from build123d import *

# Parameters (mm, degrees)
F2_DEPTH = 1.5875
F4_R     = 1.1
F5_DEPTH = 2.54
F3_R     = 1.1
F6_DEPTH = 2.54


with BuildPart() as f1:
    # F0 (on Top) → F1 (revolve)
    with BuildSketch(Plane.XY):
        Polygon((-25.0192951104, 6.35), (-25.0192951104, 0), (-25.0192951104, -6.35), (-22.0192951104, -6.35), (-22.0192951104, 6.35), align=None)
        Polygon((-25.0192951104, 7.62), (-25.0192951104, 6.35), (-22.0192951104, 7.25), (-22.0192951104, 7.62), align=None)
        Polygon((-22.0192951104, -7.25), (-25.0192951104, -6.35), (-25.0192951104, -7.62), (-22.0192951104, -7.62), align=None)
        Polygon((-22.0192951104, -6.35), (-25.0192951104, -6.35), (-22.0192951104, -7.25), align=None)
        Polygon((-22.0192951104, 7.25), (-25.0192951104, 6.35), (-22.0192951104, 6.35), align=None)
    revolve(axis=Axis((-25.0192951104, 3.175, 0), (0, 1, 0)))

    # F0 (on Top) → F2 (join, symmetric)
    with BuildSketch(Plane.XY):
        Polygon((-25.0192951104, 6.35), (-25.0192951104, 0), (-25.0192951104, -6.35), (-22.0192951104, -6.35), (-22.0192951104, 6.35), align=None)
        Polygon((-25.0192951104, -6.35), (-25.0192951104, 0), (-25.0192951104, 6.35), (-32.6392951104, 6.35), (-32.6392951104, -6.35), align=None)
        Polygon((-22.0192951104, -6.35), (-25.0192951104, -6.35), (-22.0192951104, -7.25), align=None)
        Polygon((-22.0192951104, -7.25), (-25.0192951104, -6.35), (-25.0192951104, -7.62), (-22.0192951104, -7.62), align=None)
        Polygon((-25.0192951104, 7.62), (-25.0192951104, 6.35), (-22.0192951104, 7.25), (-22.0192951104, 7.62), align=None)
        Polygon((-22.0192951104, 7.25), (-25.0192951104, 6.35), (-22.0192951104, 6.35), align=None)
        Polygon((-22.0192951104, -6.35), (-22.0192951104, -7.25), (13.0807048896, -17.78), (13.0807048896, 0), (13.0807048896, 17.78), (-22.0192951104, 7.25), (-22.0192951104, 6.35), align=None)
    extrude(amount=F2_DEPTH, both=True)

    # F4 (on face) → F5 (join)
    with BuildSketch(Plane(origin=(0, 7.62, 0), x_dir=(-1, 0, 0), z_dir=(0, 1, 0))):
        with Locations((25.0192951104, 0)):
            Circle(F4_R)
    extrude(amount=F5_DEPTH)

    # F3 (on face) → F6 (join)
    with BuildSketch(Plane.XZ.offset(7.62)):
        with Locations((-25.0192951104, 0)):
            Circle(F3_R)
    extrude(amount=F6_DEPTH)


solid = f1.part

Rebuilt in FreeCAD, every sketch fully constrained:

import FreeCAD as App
import Part
import Sketcher
Q = App.Units.Quantity

doc = App.newDocument("Part")
body = doc.addObject("PartDesign::Body", "Body")

sketch1 = doc.addObject("Sketcher::SketchObject", "Sketch")
body.addObject(sketch1)
sketch1.AttachmentSupport = (doc.XY_Plane, [""])
sketch1.MapMode = "FlatFace"
sketch1.addGeometry(Part.LineSegment(App.Vector(-25.019295, -7.62, 0), App.Vector(-22.019295, -7.62, 0)), False)
sketch1.addGeometry(Part.LineSegment(App.Vector(-22.019295, -7.62, 0), App.Vector(-22.019295, 7.62, 0)), False)
sketch1.addGeometry(Part.LineSegment(App.Vector(-22.019295, 7.62, 0), App.Vector(-25.019295, 7.62, 0)), False)
sketch1.addGeometry(Part.LineSegment(App.Vector(-25.019295, 7.62, 0), App.Vector(-25.019295, -7.62, 0)), False)
sketch1.addGeometry(Part.LineSegment(App.Vector(-25.019295, -7.62, 0), App.Vector(-25.019295, 7.62, 0)), True)
sketch1.addConstraint(Sketcher.Constraint("Coincident", 0, 2, 1, 1))
sketch1.addConstraint(Sketcher.Constraint("Coincident", 1, 2, 2, 1))
sketch1.addConstraint(Sketcher.Constraint("Coincident", 2, 2, 3, 1))
sketch1.addConstraint(Sketcher.Constraint("Coincident", 3, 2, 0, 1))
sketch1.addConstraint(Sketcher.Constraint("Horizontal", 0))
sketch1.addConstraint(Sketcher.Constraint("Vertical", 1))
sketch1.addConstraint(Sketcher.Constraint("Horizontal", 2))
sketch1.addConstraint(Sketcher.Constraint("Vertical", 3))
sketch1.addConstraint(Sketcher.Constraint("Vertical", 4))
sketch1.addConstraint(Sketcher.Constraint("Coincident", 4, 1, 3, 2))
sketch1.addConstraint(Sketcher.Constraint("Horizontal", 1, 2, 4, 2))
sketch1.addConstraint(Sketcher.Constraint("DistanceY", 1, 1, 1, 2, Q("0.6 in")))
sketch1.addConstraint(Sketcher.Constraint("DistanceY", 0, 2, -1, 1, Q("0.3 in")))
sketch1.addConstraint(Sketcher.Constraint("DistanceX", 0, 1, 0, 2, Q("3 mm")))
sketch1.addConstraint(Sketcher.Constraint("DistanceX", 0, 2, -1, 1, Q("22.019295 mm")))
revolution = doc.addObject("PartDesign::Revolution", "Revolution")
body.addObject(revolution)
revolution.Profile = sketch1
revolution.ReferenceAxis = (sketch1, ["Axis0"])
revolution.Angle = 360

sketch2 = doc.addObject("Sketcher::SketchObject", "Sketch001")
body.addObject(sketch2)
sketch2.AttachmentSupport = (doc.XY_Plane, [""])
sketch2.MapMode = "FlatFace"
sketch2.addGeometry(Part.LineSegment(App.Vector(-25.019295, 6.35, 0), App.Vector(-32.639295, 6.35, 0)), False)
sketch2.addGeometry(Part.LineSegment(App.Vector(-32.639295, 6.35, 0), App.Vector(-32.639295, -6.35, 0)), False)
sketch2.addGeometry(Part.LineSegment(App.Vector(-32.639295, -6.35, 0), App.Vector(-25.019295, -6.35, 0)), False)
sketch2.addGeometry(Part.LineSegment(App.Vector(-25.019295, -6.35, 0), App.Vector(-25.019295, -7.62, 0)), False)
sketch2.addGeometry(Part.LineSegment(App.Vector(-25.019295, -7.62, 0), App.Vector(-22.019295, -7.62, 0)), False)
sketch2.addGeometry(Part.LineSegment(App.Vector(-22.019295, -7.62, 0), App.Vector(-22.019295, -7.25, 0)), False)
sketch2.addGeometry(Part.LineSegment(App.Vector(-22.019295, -7.25, 0), App.Vector(13.080705, -17.78, 0)), False)
sketch2.addGeometry(Part.LineSegment(App.Vector(13.080705, -17.78, 0), App.Vector(13.080705, 17.78, 0)), False)
sketch2.addGeometry(Part.LineSegment(App.Vector(13.080705, 17.78, 0), App.Vector(-22.019295, 7.25, 0)), False)
sketch2.addGeometry(Part.LineSegment(App.Vector(-22.019295, 7.25, 0), App.Vector(-22.019295, 7.62, 0)), False)
sketch2.addGeometry(Part.LineSegment(App.Vector(-22.019295, 7.62, 0), App.Vector(-25.019295, 7.62, 0)), False)
sketch2.addGeometry(Part.LineSegment(App.Vector(-25.019295, 7.62, 0), App.Vector(-25.019295, 6.35, 0)), False)
sketch2.addConstraint(Sketcher.Constraint("Coincident", 0, 2, 1, 1))
sketch2.addConstraint(Sketcher.Constraint("Coincident", 1, 2, 2, 1))
sketch2.addConstraint(Sketcher.Constraint("Coincident", 2, 2, 3, 1))
sketch2.addConstraint(Sketcher.Constraint("Coincident", 3, 2, 4, 1))
sketch2.addConstraint(Sketcher.Constraint("Coincident", 4, 2, 5, 1))
sketch2.addConstraint(Sketcher.Constraint("Coincident", 5, 2, 6, 1))
sketch2.addConstraint(Sketcher.Constraint("Coincident", 6, 2, 7, 1))
sketch2.addConstraint(Sketcher.Constraint("Coincident", 7, 2, 8, 1))
sketch2.addConstraint(Sketcher.Constraint("Coincident", 8, 2, 9, 1))
sketch2.addConstraint(Sketcher.Constraint("Coincident", 9, 2, 10, 1))
sketch2.addConstraint(Sketcher.Constraint("Coincident", 10, 2, 11, 1))
sketch2.addConstraint(Sketcher.Constraint("Coincident", 11, 2, 0, 1))
sketch2.addConstraint(Sketcher.Constraint("Horizontal", 0))
sketch2.addConstraint(Sketcher.Constraint("Vertical", 1))
sketch2.addConstraint(Sketcher.Constraint("Horizontal", 2))
sketch2.addConstraint(Sketcher.Constraint("Vertical", 3))
sketch2.addConstraint(Sketcher.Constraint("Horizontal", 4))
sketch2.addConstraint(Sketcher.Constraint("Vertical", 5))
sketch2.addConstraint(Sketcher.Constraint("Vertical", 7))
sketch2.addConstraint(Sketcher.Constraint("Vertical", 9))
sketch2.addConstraint(Sketcher.Constraint("Horizontal", 10))
sketch2.addConstraint(Sketcher.Constraint("Vertical", 11))
sketch2.addConstraint(Sketcher.Constraint("Symmetric", 5, 2, 8, 2, -1))
sketch2.addConstraint(Sketcher.Constraint("Symmetric", 3, 2, 10, 2, -1))
sketch2.addConstraint(Sketcher.Constraint("Equal", 3, 11))
sketch2.addConstraint(Sketcher.Constraint("Equal", 6, 8))
sketch2.addConstraint(Sketcher.Constraint("DistanceX", 0, 2, 0, 1, Q("0.3 in")))
sketch2.addConstraint(Sketcher.Constraint("DistanceY", 1, 2, 1, 1, Q("0.5 in")))
sketch2.addConstraint(Sketcher.Constraint("DistanceY", 7, 1, 7, 2, Q("1.4 in")))
sketch2.addConstraint(Sketcher.Constraint("DistanceY", 4, 2, 7, 2, Q("1 in")))
sketch2.addConstraint(Sketcher.Constraint("DistanceX", 3, 2, 6, 2, Q("1.5 in")))
sketch2.addConstraint(Sketcher.Constraint("DistanceX", 4, 1, 4, 2, Q("3 mm")))
sketch2.addConstraint(Sketcher.Constraint("DistanceY", 5, 1, 5, 2, Q("0.37 mm")))
sketch2.addConstraint(Sketcher.Constraint("DistanceX", 0, 2, -1, 1, Q("32.639295 mm")))
pad1 = doc.addObject("PartDesign::Pad", "Pad")
body.addObject(pad1)
pad1.Profile = sketch2
pad1.Length = Q("0.125 in")
pad1.Midplane = True

sketch3 = doc.addObject("Sketcher::SketchObject", "Sketch002")
body.addObject(sketch3)
sketch3.AttachmentSupport = (doc.XZ_Plane, [""])
sketch3.MapMode = "FlatFace"
sketch3.AttachmentOffset = App.Placement(App.Vector(0, 0, -0.3 * 25.4), App.Rotation())
sketch3.addGeometry(Part.Circle(App.Vector(-25.019295, 0, 0), App.Vector(0, 0, 1), 1.1), False)
sketch3.addConstraint(Sketcher.Constraint("PointOnObject", 0, 3, -1))
sketch3.addConstraint(Sketcher.Constraint("Diameter", 0, Q("2.2 mm")))
sketch3.addConstraint(Sketcher.Constraint("DistanceX", 0, 3, -1, 1, Q("25.019295 mm")))
pad2 = doc.addObject("PartDesign::Pad", "Pad001")
body.addObject(pad2)
pad2.Profile = sketch3
pad2.Length = Q("0.1 in")
pad2.Reversed = True

sketch4 = doc.addObject("Sketcher::SketchObject", "Sketch003")
body.addObject(sketch4)
sketch4.AttachmentSupport = (doc.XZ_Plane, [""])
sketch4.MapMode = "FlatFace"
sketch4.AttachmentOffset = App.Placement(App.Vector(0, 0, 0.3 * 25.4), App.Rotation())
sketch4.addGeometry(Part.Circle(App.Vector(-25.019295, 0, 0), App.Vector(0, 0, 1), 1.1), False)
sketch4.addConstraint(Sketcher.Constraint("PointOnObject", 0, 3, -1))
sketch4.addConstraint(Sketcher.Constraint("Diameter", 0, Q("2.2 mm")))
sketch4.addConstraint(Sketcher.Constraint("DistanceX", 0, 3, -1, 1, Q("25.019295 mm")))
pad3 = doc.addObject("PartDesign::Pad", "Pad002")
body.addObject(pad3)
pad3.Profile = sketch4
pad3.Length = Q("0.1 in")

doc.recompute()
